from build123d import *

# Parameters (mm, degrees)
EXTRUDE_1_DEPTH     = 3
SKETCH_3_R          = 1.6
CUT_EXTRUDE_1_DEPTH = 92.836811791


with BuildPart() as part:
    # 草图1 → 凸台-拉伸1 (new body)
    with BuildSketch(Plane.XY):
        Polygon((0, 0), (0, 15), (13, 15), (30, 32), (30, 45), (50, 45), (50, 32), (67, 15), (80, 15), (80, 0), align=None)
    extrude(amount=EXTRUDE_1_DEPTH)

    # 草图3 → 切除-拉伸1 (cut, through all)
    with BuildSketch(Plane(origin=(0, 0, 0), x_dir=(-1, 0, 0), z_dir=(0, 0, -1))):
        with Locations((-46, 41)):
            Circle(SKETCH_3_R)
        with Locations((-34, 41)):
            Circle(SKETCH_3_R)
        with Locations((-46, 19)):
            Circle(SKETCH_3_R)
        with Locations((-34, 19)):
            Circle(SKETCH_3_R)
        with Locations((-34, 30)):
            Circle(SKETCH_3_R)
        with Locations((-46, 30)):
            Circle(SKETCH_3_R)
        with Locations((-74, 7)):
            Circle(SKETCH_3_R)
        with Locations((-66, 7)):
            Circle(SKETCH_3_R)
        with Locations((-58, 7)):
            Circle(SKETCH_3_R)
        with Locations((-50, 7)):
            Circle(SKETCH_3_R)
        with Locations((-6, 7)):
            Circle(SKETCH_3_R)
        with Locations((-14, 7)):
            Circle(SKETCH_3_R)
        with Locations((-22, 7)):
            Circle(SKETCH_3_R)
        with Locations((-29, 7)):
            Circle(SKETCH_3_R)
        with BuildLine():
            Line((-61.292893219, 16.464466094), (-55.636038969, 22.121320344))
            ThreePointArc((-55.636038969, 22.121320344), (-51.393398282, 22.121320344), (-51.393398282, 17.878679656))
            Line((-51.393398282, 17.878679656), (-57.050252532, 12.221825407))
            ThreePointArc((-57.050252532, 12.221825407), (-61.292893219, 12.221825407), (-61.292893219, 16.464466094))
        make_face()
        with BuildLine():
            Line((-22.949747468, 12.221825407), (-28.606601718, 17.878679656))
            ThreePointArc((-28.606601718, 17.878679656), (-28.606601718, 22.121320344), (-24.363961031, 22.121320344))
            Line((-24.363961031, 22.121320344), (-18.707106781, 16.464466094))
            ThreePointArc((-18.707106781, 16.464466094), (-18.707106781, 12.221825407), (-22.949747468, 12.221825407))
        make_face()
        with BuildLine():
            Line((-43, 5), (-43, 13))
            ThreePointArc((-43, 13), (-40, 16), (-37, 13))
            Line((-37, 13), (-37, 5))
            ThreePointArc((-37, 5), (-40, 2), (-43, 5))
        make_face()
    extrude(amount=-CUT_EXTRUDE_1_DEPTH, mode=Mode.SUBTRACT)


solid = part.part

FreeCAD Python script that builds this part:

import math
import FreeCAD as App
import Part
import Sketcher
Q = App.Units.Quantity

doc = App.newDocument("Part")
params = doc.addObject("Spreadsheet::Sheet", "Params")
for row, (alias, value) in enumerate([
    ("sketch1_width", "80 mm"),
    ("sketch1_width2", "13 mm"),
    ("sketch1_width3", "20 mm"),
    ("sketch1_height", "15 mm"),
    ("pad1_length", "3 mm"),
    ("sketch2_radius", "3 mm"),
    ("sketch2_diameter", "3.2 mm"),
    ("sketch2_height", "8 mm"),
    ("sketch2_length", "8 mm"),
], start=1):
    params.set(f"A{row}", alias)
    params.set(f"B{row}", "=" + value)
    params.setAlias(f"B{row}", alias)

body = doc.addObject("PartDesign::Body", "Body")

# Sketch on XY plane
sketch1 = body.newObject("Sketcher::SketchObject", "Sketch")
sketch1.AttachmentSupport = (doc.getObject("XY_Plane"), [""])
sketch1.MapMode = "FlatFace"
sketch1.addGeometry([
    Part.LineSegment(App.Vector(0, 15, 0), App.Vector(0, 0, 0)),  # 0
    Part.LineSegment(App.Vector(0, 0, 0), App.Vector(80, 0, 0)),  # 1
    Part.LineSegment(App.Vector(80, 0, 0), App.Vector(80, 15, 0)),  # 2
    Part.LineSegment(App.Vector(80, 15, 0), App.Vector(67, 15, 0)),  # 3
    Part.LineSegment(App.Vector(67, 15, 0), App.Vector(50, 32, 0)),  # 4
    Part.LineSegment(App.Vector(50, 32, 0), App.Vector(50, 45, 0)),  # 5
    Part.LineSegment(App.Vector(50, 45, 0), App.Vector(30, 45, 0)),  # 6
    Part.LineSegment(App.Vector(30, 45, 0), App.Vector(30, 32, 0)),  # 7
    Part.LineSegment(App.Vector(30, 32, 0), App.Vector(13, 15, 0)),  # 8
    Part.LineSegment(App.Vector(13, 15, 0), App.Vector(0, 15, 0)),  # 9
], False)
sketch1.addConstraint([
    Sketcher.Constraint("Coincident", 0, 2, 1, 1),
    Sketcher.Constraint("Coincident", 1, 2, 2, 1),
    Sketcher.Constraint("Coincident", 2, 2, 3, 1),
    Sketcher.Constraint("Coincident", 3, 2, 4, 1),
    Sketcher.Constraint("Coincident", 4, 2, 5, 1),
    Sketcher.Constraint("Coincident", 5, 2, 6, 1),
    Sketcher.Constraint("Coincident", 6, 2, 7, 1),
    Sketcher.Constraint("Coincident", 7, 2, 8, 1),
    Sketcher.Constraint("Coincident", 8, 2, 9, 1),
    Sketcher.Constraint("Coincident", 9, 2, 0, 1),
    Sketcher.Constraint("Vertical", 0),
    Sketcher.Constraint("Horizontal", 1),
    Sketcher.Constraint("Vertical", 2),
    Sketcher.Constraint("Horizontal", 3),
    Sketcher.Constraint("Vertical", 5),
    Sketcher.Constraint("Horizontal", 6),
    Sketcher.Constraint("Vertical", 7),
    Sketcher.Constraint("Horizontal", 9),
    Sketcher.Constraint("Coincident", 0, 2, -1, 1),
    Sketcher.Constraint("Perpendicular", 4, 8),
    Sketcher.Constraint("Horizontal", 4, 2, 7, 2),
    Sketcher.Constraint("Horizontal", 3, 2, 8, 2),
    Sketcher.Constraint("Equal", 3, 9),
    Sketcher.Constraint("Equal", 9, 5),
    Sketcher.Constraint("Equal", 4, 8),
    Sketcher.Constraint("DistanceX", 1, 1, 1, 2, Q("80 mm")),
    Sketcher.Constraint("DistanceX", 3, 2, 3, 1, Q("13 mm")),
    Sketcher.Constraint("DistanceX", 6, 2, 6, 1, Q("20 mm")),
    Sketcher.Constraint("DistanceY", 0, 2, 0, 1, Q("15 mm")),
])
sketch1.setExpression("Constraints[25]", "Params.sketch1_width")
sketch1.setExpression("Constraints[26]", "Params.sketch1_width2")
sketch1.setExpression("Constraints[27]", "Params.sketch1_width3")
sketch1.setExpression("Constraints[28]", "Params.sketch1_height")
pad1 = body.newObject("PartDesign::Pad", "Pad")
pad1.Profile = sketch1
pad1.setExpression("Length", "Params.pad1_length")

# Sketch on XY plane
sketch2 = body.newObject("Sketcher::SketchObject", "Sketch001")
sketch2.AttachmentSupport = (doc.getObject("XY_Plane"), [""])
sketch2.MapMode = "FlatFace"
sketch2.addGeometry([
    Part.Circle(App.Vector(46, 41, 0), App.Vector(0, 0, 1), 1.6),  # 0
    Part.Circle(App.Vector(34, 41, 0), App.Vector(0, 0, 1), 1.6),  # 1
    Part.Circle(App.Vector(46, 19, 0), App.Vector(0, 0, 1), 1.6),  # 2
    Part.Circle(App.Vector(34, 19, 0), App.Vector(0, 0, 1), 1.6),  # 3
    Part.Circle(App.Vector(34, 30, 0), App.Vector(0, 0, 1), 1.6),  # 4
    Part.Circle(App.Vector(46, 30, 0), App.Vector(0, 0, 1), 1.6),  # 5
    Part.Circle(App.Vector(74, 7, 0), App.Vector(0, 0, 1), 1.6),  # 6
    Part.Circle(App.Vector(66, 7, 0), App.Vector(0, 0, 1), 1.6),  # 7
    Part.Circle(App.Vector(58, 7, 0), App.Vector(0, 0, 1), 1.6),  # 8
    Part.Circle(App.Vector(50, 7, 0), App.Vector(0, 0, 1), 1.6),  # 9
    Part.Circle(App.Vector(6, 7, 0), App.Vector(0, 0, 1), 1.6),  # 10
    Part.Circle(App.Vector(14, 7, 0), App.Vector(0, 0, 1), 1.6),  # 11
    Part.Circle(App.Vector(22, 7, 0), App.Vector(0, 0, 1), 1.6),  # 12
    Part.Circle(App.Vector(29, 7, 0), App.Vector(0, 0, 1), 1.6),  # 13
    Part.LineSegment(App.Vector(55.6, 22.1, 0), App.Vector(61.3, 16.5, 0)),  # 14
    Part.ArcOfCircle(Part.Circle(App.Vector(59.2, 14.3, 0), App.Vector(0, 0, 1), 3), math.radians(-135), math.radians(45)),  # 15
    Part.LineSegment(App.Vector(57.1, 12.2, 0), App.Vector(51.4, 17.9, 0)),  # 16
    Part.ArcOfCircle(Part.Circle(App.Vector(53.5, 20, 0), App.Vector(0, 0, 1), 3), math.radians(45), math.radians(225)),  # 17
    Part.LineSegment(App.Vector(28.6, 17.9, 0), App.Vector(22.9, 12.2, 0)),  # 18
    Part.ArcOfCircle(Part.Circle(App.Vector(20.8, 14.3, 0), App.Vector(0, 0, 1), 3), math.radians(135), math.radians(315)),  # 19
    Part.LineSegment(App.Vector(18.7, 16.5, 0), App.Vector(24.4, 22.1, 0)),  # 20
    Part.ArcOfCircle(Part.Circle(App.Vector(26.5, 20, 0), App.Vector(0, 0, 1), 3), math.radians(-45), math.radians(135)),  # 21
    Part.LineSegment(App.Vector(43, 13, 0), App.Vector(43, 5, 0)),  # 22
    Part.ArcOfCircle(Part.Circle(App.Vector(40, 5, 0), App.Vector(0, 0, 1), 3), math.radians(180), math.radians(360)),  # 23
    Part.LineSegment(App.Vector(37, 5, 0), App.Vector(37, 13, 0)),  # 24
    Part.ArcOfCircle(Part.Circle(App.Vector(40, 13, 0), App.Vector(0, 0, 1), 3), math.radians(0), math.radians(180)),  # 25
], False)
sketch2.addConstraint([
    Sketcher.Constraint("Tangent", 14, 2, 15, 2),
    Sketcher.Constraint("Tangent", 15, 1, 16, 1),
    Sketcher.Constraint("Tangent", 16, 2, 17, 2),
    Sketcher.Constraint("Tangent", 17, 1, 14, 1),
    Sketcher.Constraint("Tangent", 18, 2, 19, 2),
    Sketcher.Constraint("Tangent", 19, 1, 20, 1),
    Sketcher.Constraint("Tangent", 20, 2, 21, 2),
    Sketcher.Constraint("Tangent", 21, 1, 18, 1),
    Sketcher.Constraint("Tangent", 22, 2, 23, 2),
    Sketcher.Constraint("Tangent", 23, 1, 24, 1),
    Sketcher.Constraint("Tangent", 24, 2, 25, 2),
    Sketcher.Constraint("Tangent", 25, 1, 22, 1),
    Sketcher.Constraint("Vertical", 22),
    Sketcher.Constraint("Vertical", 24),
    Sketcher.Constraint("Equal", 0, 1),
    Sketcher.Constraint("Equal", 1, 2),
    Sketcher.Constraint("Equal", 2, 3),
    Sketcher.Constraint("Equal", 3, 4),
    Sketcher.Constraint("Equal", 4, 5),
    Sketcher.Constraint("Equal", 5, 6),
    Sketcher.Constraint("Equal", 6, 7),
    Sketcher.Constraint("Equal", 7, 8),
    Sketcher.Constraint("Equal", 8, 9),
    Sketcher.Constraint("Equal", 9, 10),
    Sketcher.Constraint("Equal", 10, 11),
    Sketcher.Constraint("Equal", 11, 12),
    Sketcher.Constraint("Equal", 12, 13),
    Sketcher.Constraint("Equal", 15, 17),
    Sketcher.Constraint("Equal", 17, 19),
    Sketcher.Constraint("Equal", 19, 21),
    Sketcher.Constraint("Equal", 21, 23),
    Sketcher.Constraint("Perpendicular", 16, 18),
    Sketcher.Constraint("Horizontal", 0, 3, 1, 3),
    Sketcher.Constraint("Horizontal", 2, 3, 3, 3),
    Sketcher.Constraint("Horizontal", 4, 3, 5, 3),
    Sketcher.Constraint("Horizontal", 6, 3, 7, 3),
    Sketcher.Constraint("Horizontal", 7, 3, 8, 3),
    Sketcher.Constraint("Horizontal", 8, 3, 9, 3),
    Sketcher.Constraint("Horizontal", 9, 3, 10, 3),
    Sketcher.Constraint("Horizontal", 10, 3, 11, 3),
    Sketcher.Constraint("Horizontal", 11, 3, 12, 3),
    Sketcher.Constraint("Horizontal", 12, 3, 13, 3),
    Sketcher.Constraint("Horizontal", 15, 3, 19, 3),
    Sketcher.Constraint("Horizontal", 17, 3, 21, 3),
    Sketcher.Constraint("Horizontal", 15, 1, 18, 2),
    Sketcher.Constraint("Vertical", 0, 3, 2, 3),
    Sketcher.Constraint("Vertical", 1, 3, 3, 3),
    Sketcher.Constraint("Vertical", 3, 3, 4, 3),
    Sketcher.Constraint("Vertical", 2, 3, 5, 3),
    Sketcher.Constraint("Radius", 15, Q("3 mm")),
    Sketcher.Constraint("Diameter", 0, Q("3.2 mm")),
    Sketcher.Constraint("DistanceY", 22, 2, 22, 1, Q("8 mm")),
    Sketcher.Constraint("Distance", 14, Q("8 mm")),
    Sketcher.Constraint("DistanceX", -1, 1, 0, 3, Q("46 mm")),
    Sketcher.Constraint("DistanceY", -1, 1, 0, 3, Q("41 mm")),
    Sketcher.Constraint("DistanceX", -1, 1, 1, 3, Q("34 mm")),
    Sketcher.Constraint("DistanceY", -1, 1, 2, 3, Q("19 mm")),
    Sketcher.Constraint("DistanceY", -1, 1, 4, 3, Q("30 mm")),
    Sketcher.Constraint("DistanceX", -1, 1, 6, 3, Q("74 mm")),
    Sketcher.Constraint("DistanceY", -1, 1, 6, 3, Q("7 mm")),
    Sketcher.Constraint("DistanceX", -1, 1, 7, 3, Q("66 mm")),
    Sketcher.Constraint("DistanceX", -1, 1, 8, 3, Q("58 mm")),
    Sketcher.Constraint("DistanceX", -1, 1, 9, 3, Q("50 mm")),
    Sketcher.Constraint("DistanceX", -1, 1, 10, 3, Q("6 mm")),
    Sketcher.Constraint("DistanceX", -1, 1, 11, 3, Q("14 mm")),
    Sketcher.Constraint("DistanceX", -1, 1, 12, 3, Q("22 mm")),
    Sketcher.Constraint("DistanceX", -1, 1, 13, 3, Q("29 mm")),
    Sketcher.Constraint("DistanceY", -1, 1, 17, 3, Q("20 mm")),
    Sketcher.Constraint("DistanceX", -1, 1, 23, 3, Q("40 mm")),
    Sketcher.Constraint("DistanceY", -1, 1, 23, 3, Q("5 mm")),
    Sketcher.Constraint("DistanceX", -1, 1, 16, 2, Q("51.393398 mm")),
    Sketcher.Constraint("DistanceX", -1, 1, 21, 1, Q("28.606602 mm")),
])
sketch2.setExpression("Constraints[49]", "Params.sketch2_radius")
sketch2.setExpression("Constraints[50]", "Params.sketch2_diameter")
sketch2.setExpression("Constraints[51]", "Params.sketch2_height")
sketch2.setExpression("Constraints[52]", "Params.sketch2_length")
pocket1 = body.newObject("PartDesign::Pocket", "Pocket")
pocket1.Profile = sketch2
pocket1.Type = "ThroughAll"
pocket1.Reversed = True

doc.recompute()
